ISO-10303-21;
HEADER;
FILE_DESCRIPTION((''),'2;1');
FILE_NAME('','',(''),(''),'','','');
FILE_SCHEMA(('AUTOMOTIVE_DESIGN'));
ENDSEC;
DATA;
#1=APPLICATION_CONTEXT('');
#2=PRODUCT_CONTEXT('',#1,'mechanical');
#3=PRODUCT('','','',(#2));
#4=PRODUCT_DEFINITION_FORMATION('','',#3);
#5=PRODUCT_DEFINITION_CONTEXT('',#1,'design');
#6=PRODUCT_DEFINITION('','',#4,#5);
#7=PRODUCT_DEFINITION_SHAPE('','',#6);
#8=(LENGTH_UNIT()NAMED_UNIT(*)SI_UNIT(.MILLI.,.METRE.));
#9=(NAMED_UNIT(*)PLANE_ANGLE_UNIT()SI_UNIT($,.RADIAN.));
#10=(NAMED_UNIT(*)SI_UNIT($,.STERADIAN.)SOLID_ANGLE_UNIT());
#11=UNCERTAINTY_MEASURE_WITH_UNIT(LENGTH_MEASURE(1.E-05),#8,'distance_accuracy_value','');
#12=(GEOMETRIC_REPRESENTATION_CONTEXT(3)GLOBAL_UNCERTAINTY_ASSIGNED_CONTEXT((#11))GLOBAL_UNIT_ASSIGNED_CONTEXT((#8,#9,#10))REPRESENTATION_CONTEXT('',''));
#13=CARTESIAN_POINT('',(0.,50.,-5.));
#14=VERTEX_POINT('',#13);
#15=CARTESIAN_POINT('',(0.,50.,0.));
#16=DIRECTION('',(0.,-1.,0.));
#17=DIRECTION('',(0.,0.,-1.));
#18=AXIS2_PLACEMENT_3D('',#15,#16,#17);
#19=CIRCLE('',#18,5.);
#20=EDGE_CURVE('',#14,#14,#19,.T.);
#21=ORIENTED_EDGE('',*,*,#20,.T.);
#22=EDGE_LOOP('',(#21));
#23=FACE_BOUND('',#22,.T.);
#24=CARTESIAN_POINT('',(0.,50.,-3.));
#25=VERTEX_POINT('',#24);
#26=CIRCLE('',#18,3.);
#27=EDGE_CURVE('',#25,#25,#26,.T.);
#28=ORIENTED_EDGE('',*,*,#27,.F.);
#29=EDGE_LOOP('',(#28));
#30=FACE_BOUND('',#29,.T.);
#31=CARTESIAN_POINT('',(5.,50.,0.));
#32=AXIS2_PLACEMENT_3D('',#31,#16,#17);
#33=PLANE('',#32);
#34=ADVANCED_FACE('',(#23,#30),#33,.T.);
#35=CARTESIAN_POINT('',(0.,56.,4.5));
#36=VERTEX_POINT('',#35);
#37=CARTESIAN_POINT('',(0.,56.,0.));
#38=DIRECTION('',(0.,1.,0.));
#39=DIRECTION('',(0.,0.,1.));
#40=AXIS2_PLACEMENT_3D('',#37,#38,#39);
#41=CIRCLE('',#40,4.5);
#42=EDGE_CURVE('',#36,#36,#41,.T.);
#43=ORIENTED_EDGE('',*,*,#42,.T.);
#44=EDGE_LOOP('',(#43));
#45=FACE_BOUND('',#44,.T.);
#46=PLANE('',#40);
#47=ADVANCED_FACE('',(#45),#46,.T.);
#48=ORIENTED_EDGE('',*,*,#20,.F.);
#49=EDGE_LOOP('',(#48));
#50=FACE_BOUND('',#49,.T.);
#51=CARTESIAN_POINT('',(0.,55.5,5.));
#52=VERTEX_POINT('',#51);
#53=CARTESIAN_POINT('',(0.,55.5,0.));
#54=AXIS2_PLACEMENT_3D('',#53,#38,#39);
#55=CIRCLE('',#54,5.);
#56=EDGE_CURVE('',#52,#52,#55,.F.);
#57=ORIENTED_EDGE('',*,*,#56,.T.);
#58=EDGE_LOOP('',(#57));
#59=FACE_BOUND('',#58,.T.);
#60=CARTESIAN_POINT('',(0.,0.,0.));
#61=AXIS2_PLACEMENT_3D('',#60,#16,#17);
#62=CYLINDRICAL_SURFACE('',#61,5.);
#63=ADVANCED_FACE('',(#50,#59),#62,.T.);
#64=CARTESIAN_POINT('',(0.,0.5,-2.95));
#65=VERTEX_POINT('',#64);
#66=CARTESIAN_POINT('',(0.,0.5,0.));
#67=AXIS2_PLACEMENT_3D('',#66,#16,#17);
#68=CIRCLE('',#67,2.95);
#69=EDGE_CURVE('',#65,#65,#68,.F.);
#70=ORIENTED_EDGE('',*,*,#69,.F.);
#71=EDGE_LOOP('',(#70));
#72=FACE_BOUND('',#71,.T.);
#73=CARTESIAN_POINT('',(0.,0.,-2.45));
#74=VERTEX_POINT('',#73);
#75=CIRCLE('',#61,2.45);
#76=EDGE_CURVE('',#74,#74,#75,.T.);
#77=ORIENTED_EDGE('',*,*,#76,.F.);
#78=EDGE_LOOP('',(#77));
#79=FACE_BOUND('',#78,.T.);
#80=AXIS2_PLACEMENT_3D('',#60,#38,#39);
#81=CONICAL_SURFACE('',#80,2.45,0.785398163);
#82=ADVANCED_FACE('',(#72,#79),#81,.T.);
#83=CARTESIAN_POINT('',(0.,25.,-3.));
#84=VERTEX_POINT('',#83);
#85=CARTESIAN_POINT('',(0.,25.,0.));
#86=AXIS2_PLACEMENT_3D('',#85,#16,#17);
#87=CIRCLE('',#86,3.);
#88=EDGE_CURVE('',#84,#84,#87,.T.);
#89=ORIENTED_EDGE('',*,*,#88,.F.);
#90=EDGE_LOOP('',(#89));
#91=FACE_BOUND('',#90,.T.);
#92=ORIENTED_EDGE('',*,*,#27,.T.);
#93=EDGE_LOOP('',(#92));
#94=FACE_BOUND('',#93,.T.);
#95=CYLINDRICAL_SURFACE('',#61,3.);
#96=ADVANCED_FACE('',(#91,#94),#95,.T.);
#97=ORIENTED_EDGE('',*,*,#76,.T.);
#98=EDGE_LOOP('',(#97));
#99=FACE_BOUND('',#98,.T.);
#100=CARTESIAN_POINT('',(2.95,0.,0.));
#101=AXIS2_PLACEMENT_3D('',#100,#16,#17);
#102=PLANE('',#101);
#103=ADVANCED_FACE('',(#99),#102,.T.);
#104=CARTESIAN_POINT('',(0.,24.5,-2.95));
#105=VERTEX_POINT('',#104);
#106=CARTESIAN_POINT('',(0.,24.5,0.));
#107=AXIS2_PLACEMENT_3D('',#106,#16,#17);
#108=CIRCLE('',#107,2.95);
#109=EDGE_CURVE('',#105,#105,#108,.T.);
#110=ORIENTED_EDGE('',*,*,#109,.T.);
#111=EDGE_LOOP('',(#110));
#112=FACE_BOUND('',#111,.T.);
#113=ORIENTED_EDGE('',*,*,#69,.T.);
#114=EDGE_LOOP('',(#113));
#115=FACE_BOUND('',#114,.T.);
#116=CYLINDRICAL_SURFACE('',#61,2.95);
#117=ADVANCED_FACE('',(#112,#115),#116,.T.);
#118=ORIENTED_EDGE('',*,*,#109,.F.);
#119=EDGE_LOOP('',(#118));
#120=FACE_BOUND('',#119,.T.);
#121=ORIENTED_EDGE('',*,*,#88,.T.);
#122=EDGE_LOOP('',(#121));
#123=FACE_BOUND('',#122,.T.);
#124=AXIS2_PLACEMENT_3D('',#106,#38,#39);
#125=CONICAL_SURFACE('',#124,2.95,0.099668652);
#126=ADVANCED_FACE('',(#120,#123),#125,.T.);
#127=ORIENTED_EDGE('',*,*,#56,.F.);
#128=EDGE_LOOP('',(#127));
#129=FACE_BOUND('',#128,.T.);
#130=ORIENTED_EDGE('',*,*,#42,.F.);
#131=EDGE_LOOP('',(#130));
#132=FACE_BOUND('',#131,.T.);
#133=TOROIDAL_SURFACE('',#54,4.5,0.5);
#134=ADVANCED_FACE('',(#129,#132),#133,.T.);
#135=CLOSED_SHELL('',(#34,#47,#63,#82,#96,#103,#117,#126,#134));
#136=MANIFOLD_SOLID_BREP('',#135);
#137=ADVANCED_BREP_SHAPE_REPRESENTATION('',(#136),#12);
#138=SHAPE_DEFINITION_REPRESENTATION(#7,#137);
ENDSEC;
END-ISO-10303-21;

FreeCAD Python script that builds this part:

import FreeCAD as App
import Part
import Sketcher
from FreeCAD import Vector
Q = App.Units.Quantity


def edges_at(feature, points):
    """Names of the edges that pass closest to the given points."""
    edges = feature.Shape.Edges
    near = lambda p: min(range(len(edges)), key=lambda i: edges[i].distToShape(Part.Vertex(*p))[0])
    return sorted({f"Edge{near(p) + 1}" for p in points})

doc = App.newDocument("Part")
body = doc.addObject("PartDesign::Body", "Body")

# Sketch on XY plane
sketch1 = doc.addObject("Sketcher::SketchObject", "Sketch")
body.addObject(sketch1)
sketch1.AttachmentSupport = (doc.XY_Plane, [""])
sketch1.MapMode = "FlatFace"
sketch1.addGeometry(Part.LineSegment(Vector(5, 56, 0), Vector(0, 56, 0)), False)
sketch1.addGeometry(Part.LineSegment(Vector(0, 56, 0), Vector(0, 0, 0)), False)
sketch1.addGeometry(Part.LineSegment(Vector(0, 0, 0), Vector(3, 0, 0)), False)
sketch1.addGeometry(Part.LineSegment(Vector(3, 0, 0), Vector(3, 24.5, 0)), False)
sketch1.addGeometry(Part.LineSegment(Vector(3, 24.5, 0), Vector(3, 25, 0)), False)
sketch1.addGeometry(Part.LineSegment(Vector(3, 25, 0), Vector(3, 50, 0)), False)
sketch1.addGeometry(Part.LineSegment(Vector(3, 50, 0), Vector(5, 50, 0)), False)
sketch1.addGeometry(Part.LineSegment(Vector(5, 50, 0), Vector(5, 56, 0)), False)
sketch1.addConstraint(Sketcher.Constraint("Coincident", 0, 2, 1, 1))
sketch1.addConstraint(Sketcher.Constraint("Coincident", 1, 2, 2, 1))
sketch1.addConstraint(Sketcher.Constraint("Coincident", 2, 2, 3, 1))
sketch1.addConstraint(Sketcher.Constraint("Coincident", 3, 2, 4, 1))
sketch1.addConstraint(Sketcher.Constraint("Coincident", 4, 2, 5, 1))
sketch1.addConstraint(Sketcher.Constraint("Coincident", 5, 2, 6, 1))
sketch1.addConstraint(Sketcher.Constraint("Coincident", 6, 2, 7, 1))
sketch1.addConstraint(Sketcher.Constraint("Coincident", 7, 2, 0, 1))
sketch1.addConstraint(Sketcher.Constraint("Horizontal", 0))
sketch1.addConstraint(Sketcher.Constraint("Vertical", 1))
sketch1.addConstraint(Sketcher.Constraint("Horizontal", 2))
sketch1.addConstraint(Sketcher.Constraint("Vertical", 3))
sketch1.addConstraint(Sketcher.Constraint("Vertical", 5))
sketch1.addConstraint(Sketcher.Constraint("Horizontal", 6))
sketch1.addConstraint(Sketcher.Constraint("Vertical", 7))
sketch1.addConstraint(Sketcher.Constraint("Coincident", 1, 2, -1, 1))
sketch1.addConstraint(Sketcher.Constraint("DistanceX", 0, 2, 0, 1, Q("5 mm")))
sketch1.addConstraint(Sketcher.Constraint("DistanceX", 6, 1, 6, 2, Q("2 mm")))
sketch1.addConstraint(Sketcher.Constraint("DistanceY", 1, 2, 1, 1, Q("56 mm")))
sketch1.addConstraint(Sketcher.Constraint("DistanceY", 5, 1, 5, 2, Q("25 mm")))
sketch1.addConstraint(Sketcher.Constraint("DistanceY", 7, 1, 7, 2, Q("6 mm")))
sketch1.addConstraint(Sketcher.Constraint("DistanceY", 3, 1, 3, 2, Q("24.5 mm")))
sketch1.addConstraint(Sketcher.Constraint("DistanceX", 2, 1, 2, 2, Q("2.95 mm")))
revolution = doc.addObject("PartDesign::Revolution", "Revolution")
body.addObject(revolution)
revolution.Profile = sketch1
revolution.ReferenceAxis = (sketch1, ["V_Axis"])
revolution.Angle = 360
doc.recompute()

chamfer = doc.addObject("PartDesign::Chamfer", "Chamfer")
body.addObject(chamfer)
chamfer.Base = (revolution, edges_at(revolution, [(0, 0, 2.95)]))
chamfer.Size = 0.5
doc.recompute()

fillet = doc.addObject("PartDesign::Fillet", "Fillet")
body.addObject(fillet)
fillet.Base = (chamfer, edges_at(chamfer, [(0, 56, 5)]))
fillet.Radius = 0.5

doc.recompute()
